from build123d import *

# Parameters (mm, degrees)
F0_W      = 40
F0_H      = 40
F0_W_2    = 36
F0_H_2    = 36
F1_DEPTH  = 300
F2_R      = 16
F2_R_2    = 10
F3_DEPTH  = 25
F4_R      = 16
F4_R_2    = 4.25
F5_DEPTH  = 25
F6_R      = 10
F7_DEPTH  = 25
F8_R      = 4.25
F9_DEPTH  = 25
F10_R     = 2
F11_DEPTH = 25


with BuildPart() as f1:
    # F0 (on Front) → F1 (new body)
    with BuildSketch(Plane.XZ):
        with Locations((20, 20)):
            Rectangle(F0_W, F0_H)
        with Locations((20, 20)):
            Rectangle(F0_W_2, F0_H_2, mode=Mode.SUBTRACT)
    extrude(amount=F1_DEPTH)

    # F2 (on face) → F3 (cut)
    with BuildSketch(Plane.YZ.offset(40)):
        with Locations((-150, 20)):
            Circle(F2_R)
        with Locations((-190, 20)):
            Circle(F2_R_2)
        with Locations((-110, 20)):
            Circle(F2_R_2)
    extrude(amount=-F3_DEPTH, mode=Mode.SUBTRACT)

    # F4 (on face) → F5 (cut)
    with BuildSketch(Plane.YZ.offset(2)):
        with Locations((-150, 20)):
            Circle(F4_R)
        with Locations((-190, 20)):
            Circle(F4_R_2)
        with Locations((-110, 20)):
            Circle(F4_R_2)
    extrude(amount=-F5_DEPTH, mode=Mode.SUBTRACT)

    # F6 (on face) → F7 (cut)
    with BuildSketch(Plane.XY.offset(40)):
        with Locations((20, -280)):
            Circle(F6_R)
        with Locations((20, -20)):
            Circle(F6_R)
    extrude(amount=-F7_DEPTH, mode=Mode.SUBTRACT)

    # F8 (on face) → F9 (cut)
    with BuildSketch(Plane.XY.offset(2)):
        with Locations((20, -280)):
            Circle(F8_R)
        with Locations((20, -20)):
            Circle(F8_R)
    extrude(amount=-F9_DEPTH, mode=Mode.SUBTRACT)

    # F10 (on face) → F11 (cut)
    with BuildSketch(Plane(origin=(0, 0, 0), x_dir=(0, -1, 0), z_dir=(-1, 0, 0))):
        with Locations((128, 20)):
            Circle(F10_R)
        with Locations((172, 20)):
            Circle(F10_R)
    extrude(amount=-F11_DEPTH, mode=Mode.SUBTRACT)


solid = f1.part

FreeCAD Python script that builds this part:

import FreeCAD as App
import Part
import Sketcher
from FreeCAD import Vector

doc = App.newDocument("Part")
body = doc.addObject("PartDesign::Body", "Body")

sketch1 = body.newObject("Sketcher::SketchObject", "Sketch")
sketch1.AttachmentSupport = (doc.getObject("XZ_Plane"), [""])
sketch1.MapMode = "FlatFace"
sketch1.addGeometry(Part.LineSegment(Vector(0, 40, 0), Vector(0, 0, 0)), False)
sketch1.addGeometry(Part.LineSegment(Vector(0, 0, 0), Vector(40, 0, 0)), False)
sketch1.addGeometry(Part.LineSegment(Vector(40, 0, 0), Vector(40, 40, 0)), False)
sketch1.addGeometry(Part.LineSegment(Vector(40, 40, 0), Vector(0, 40, 0)), False)
sketch1.addGeometry(Part.LineSegment(Vector(38, 2, 0), Vector(2, 2, 0)), False)
sketch1.addGeometry(Part.LineSegment(Vector(2, 2, 0), Vector(2, 38, 0)), False)
sketch1.addGeometry(Part.LineSegment(Vector(2, 38, 0), Vector(38, 38, 0)), False)
sketch1.addGeometry(Part.LineSegment(Vector(38, 38, 0), Vector(38, 2, 0)), False)
sketch1.addConstraint(Sketcher.Constraint("Coincident", 0, 2, 1, 1))
sketch1.addConstraint(Sketcher.Constraint("Coincident", 1, 2, 2, 1))
sketch1.addConstraint(Sketcher.Constraint("Coincident", 2, 2, 3, 1))
sketch1.addConstraint(Sketcher.Constraint("Coincident", 3, 2, 0, 1))
sketch1.addConstraint(Sketcher.Constraint("Coincident", 4, 2, 5, 1))
sketch1.addConstraint(Sketcher.Constraint("Coincident", 5, 2, 6, 1))
sketch1.addConstraint(Sketcher.Constraint("Coincident", 6, 2, 7, 1))
sketch1.addConstraint(Sketcher.Constraint("Coincident", 7, 2, 4, 1))
sketch1.addConstraint(Sketcher.Constraint("Vertical", 0))
sketch1.addConstraint(Sketcher.Constraint("Horizontal", 1))
sketch1.addConstraint(Sketcher.Constraint("Vertical", 2))
sketch1.addConstraint(Sketcher.Constraint("Horizontal", 3))
sketch1.addConstraint(Sketcher.Constraint("Horizontal", 4))
sketch1.addConstraint(Sketcher.Constraint("Vertical", 5))
sketch1.addConstraint(Sketcher.Constraint("Horizontal", 6))
sketch1.addConstraint(Sketcher.Constraint("Vertical", 7))
sketch1.addConstraint(Sketcher.Constraint("Coincident", 0, 2, -1, 1))
sketch1.addConstraint(Sketcher.Constraint("Equal", 3, 0))
sketch1.addConstraint(Sketcher.Constraint("Equal", 6, 5))
sketch1.addConstraint(Sketcher.Constraint("DistanceX", 1, 1, 1, 2, 40.0))
sketch1.addConstraint(Sketcher.Constraint("DistanceX", 4, 2, 4, 1, 36.0))
sketch1.addConstraint(Sketcher.Constraint("DistanceX", -1, 1, 4, 2, 2.0))
sketch1.addConstraint(Sketcher.Constraint("DistanceY", -1, 1, 4, 2, 2.0))
pad1 = body.newObject("PartDesign::Pad", "Pad")
pad1.Profile = sketch1
pad1.Length = 300

sketch2 = body.newObject("Sketcher::SketchObject", "Sketch001")
sketch2.AttachmentSupport = (doc.getObject("YZ_Plane"), [""])
sketch2.MapMode = "FlatFace"
sketch2.AttachmentOffset = App.Placement(Vector(0, 0, 40), App.Rotation())
sketch2.addGeometry(Part.Circle(Vector(-150, 20, 0), Vector(0, 0, 1), 16), False)
sketch2.addGeometry(Part.Circle(Vector(-190, 20, 0), Vector(0, 0, 1), 10), False)
sketch2.addGeometry(Part.Circle(Vector(-110, 20, 0), Vector(0, 0, 1), 10), False)
sketch2.addConstraint(Sketcher.Constraint("Equal", 1, 2))
sketch2.addConstraint(Sketcher.Constraint("Horizontal", 0, 3, 1, 3))
sketch2.addConstraint(Sketcher.Constraint("Horizontal", 1, 3, 2, 3))
sketch2.addConstraint(Sketcher.Constraint("Diameter", 0, 32.0))
sketch2.addConstraint(Sketcher.Constraint("Diameter", 1, 20.0))
sketch2.addConstraint(Sketcher.Constraint("DistanceX", 0, 3, -1, 1, 150.0))
sketch2.addConstraint(Sketcher.Constraint("DistanceY", -1, 1, 0, 3, 20.0))
sketch2.addConstraint(Sketcher.Constraint("DistanceX", 1, 3, -1, 1, 190.0))
sketch2.addConstraint(Sketcher.Constraint("DistanceX", 2, 3, -1, 1, 110.0))
pocket1 = body.newObject("PartDesign::Pocket", "Pocket")
pocket1.Profile = sketch2
pocket1.Length = 25

sketch3 = body.newObject("Sketcher::SketchObject", "Sketch002")
sketch3.AttachmentSupport = (doc.getObject("YZ_Plane"), [""])
sketch3.MapMode = "FlatFace"
sketch3.AttachmentOffset = App.Placement(Vector(0, 0, 2), App.Rotation())
sketch3.addGeometry(Part.Circle(Vector(-150, 20, 0), Vector(0, 0, 1), 16), False)
sketch3.addGeometry(Part.Circle(Vector(-190, 20, 0), Vector(0, 0, 1), 4.2), False)
sketch3.addGeometry(Part.Circle(Vector(-110, 20, 0), Vector(0, 0, 1), 4.2), False)
sketch3.addConstraint(Sketcher.Constraint("Equal", 1, 2))
sketch3.addConstraint(Sketcher.Constraint("Horizontal", 0, 3, 1, 3))
sketch3.addConstraint(Sketcher.Constraint("Horizontal", 1, 3, 2, 3))
sketch3.addConstraint(Sketcher.Constraint("Diameter", 0, 32.0))
sketch3.addConstraint(Sketcher.Constraint("Diameter", 1, 8.5))
sketch3.addConstraint(Sketcher.Constraint("DistanceX", 0, 3, -1, 1, 150.0))
sketch3.addConstraint(Sketcher.Constraint("DistanceY", -1, 1, 0, 3, 20.0))
sketch3.addConstraint(Sketcher.Constraint("DistanceX", 1, 3, -1, 1, 190.0))
sketch3.addConstraint(Sketcher.Constraint("DistanceX", 2, 3, -1, 1, 110.0))
pocket2 = body.newObject("PartDesign::Pocket", "Pocket001")
pocket2.Profile = sketch3
pocket2.Length = 25

sketch4 = body.newObject("Sketcher::SketchObject", "Sketch003")
sketch4.AttachmentSupport = (doc.getObject("XY_Plane"), [""])
sketch4.MapMode = "FlatFace"
sketch4.AttachmentOffset = App.Placement(Vector(0, 0, 40), App.Rotation())
sketch4.addGeometry(Part.Circle(Vector(20, -280, 0), Vector(0, 0, 1), 10), False)
sketch4.addGeometry(Part.Circle(Vector(20, -20, 0), Vector(0, 0, 1), 10), False)
sketch4.addConstraint(Sketcher.Constraint("Equal", 0, 1))
sketch4.addConstraint(Sketcher.Constraint("Vertical", 0, 3, 1, 3))
sketch4.addConstraint(Sketcher.Constraint("Diameter", 0, 20.0))
sketch4.addConstraint(Sketcher.Constraint("DistanceX", -1, 1, 0, 3, 20.0))
sketch4.addConstraint(Sketcher.Constraint("DistanceY", 0, 3, -1, 1, 280.0))
sketch4.addConstraint(Sketcher.Constraint("DistanceY", 1, 3, -1, 1, 20.0))
pocket3 = body.newObject("PartDesign::Pocket", "Pocket002")
pocket3.Profile = sketch4
pocket3.Length = 25

sketch5 = body.newObject("Sketcher::SketchObject", "Sketch004")
sketch5.AttachmentSupport = (doc.getObject("XY_Plane"), [""])
sketch5.MapMode = "FlatFace"
sketch5.AttachmentOffset = App.Placement(Vector(0, 0, 2), App.Rotation())
sketch5.addGeometry(Part.Circle(Vector(20, -280, 0), Vector(0, 0, 1), 4.2), False)
sketch5.addGeometry(Part.Circle(Vector(20, -20, 0), Vector(0, 0, 1), 4.2), False)
sketch5.addConstraint(Sketcher.Constraint("Equal", 0, 1))
sketch5.addConstraint(Sketcher.Constraint("Vertical", 0, 3, 1, 3))
sketch5.addConstraint(Sketcher.Constraint("Diameter", 0, 8.5))
sketch5.addConstraint(Sketcher.Constraint("DistanceX", -1, 1, 0, 3, 20.0))
sketch5.addConstraint(Sketcher.Constraint("DistanceY", 0, 3, -1, 1, 280.0))
sketch5.addConstraint(Sketcher.Constraint("DistanceY", 1, 3, -1, 1, 20.0))
pocket4 = body.newObject("PartDesign::Pocket", "Pocket003")
pocket4.Profile = sketch5
pocket4.Length = 25

sketch6 = body.newObject("Sketcher::SketchObject", "Sketch005")
sketch6.AttachmentSupport = (doc.getObject("YZ_Plane"), [""])
sketch6.MapMode = "FlatFace"
sketch6.addGeometry(Part.Circle(Vector(-128, 20, 0), Vector(0, 0, 1), 2), False)
sketch6.addGeometry(Part.Circle(Vector(-172, 20, 0), Vector(0, 0, 1), 2), False)
sketch6.addConstraint(Sketcher.Constraint("Equal", 0, 1))
sketch6.addConstraint(Sketcher.Constraint("Horizontal", 0, 3, 1, 3))
sketch6.addConstraint(Sketcher.Constraint("Diameter", 0, 4.0))
sketch6.addConstraint(Sketcher.Constraint("DistanceX", 0, 3, -1, 1, 128.0))
sketch6.addConstraint(Sketcher.Constraint("DistanceY", -1, 1, 0, 3, 20.0))
sketch6.addConstraint(Sketcher.Constraint("DistanceX", 1, 3, -1, 1, 172.0))
pocket5 = body.newObject("PartDesign::Pocket", "Pocket004")
pocket5.Profile = sketch6
pocket5.Length = 25
pocket5.Reversed = True

doc.recompute()
